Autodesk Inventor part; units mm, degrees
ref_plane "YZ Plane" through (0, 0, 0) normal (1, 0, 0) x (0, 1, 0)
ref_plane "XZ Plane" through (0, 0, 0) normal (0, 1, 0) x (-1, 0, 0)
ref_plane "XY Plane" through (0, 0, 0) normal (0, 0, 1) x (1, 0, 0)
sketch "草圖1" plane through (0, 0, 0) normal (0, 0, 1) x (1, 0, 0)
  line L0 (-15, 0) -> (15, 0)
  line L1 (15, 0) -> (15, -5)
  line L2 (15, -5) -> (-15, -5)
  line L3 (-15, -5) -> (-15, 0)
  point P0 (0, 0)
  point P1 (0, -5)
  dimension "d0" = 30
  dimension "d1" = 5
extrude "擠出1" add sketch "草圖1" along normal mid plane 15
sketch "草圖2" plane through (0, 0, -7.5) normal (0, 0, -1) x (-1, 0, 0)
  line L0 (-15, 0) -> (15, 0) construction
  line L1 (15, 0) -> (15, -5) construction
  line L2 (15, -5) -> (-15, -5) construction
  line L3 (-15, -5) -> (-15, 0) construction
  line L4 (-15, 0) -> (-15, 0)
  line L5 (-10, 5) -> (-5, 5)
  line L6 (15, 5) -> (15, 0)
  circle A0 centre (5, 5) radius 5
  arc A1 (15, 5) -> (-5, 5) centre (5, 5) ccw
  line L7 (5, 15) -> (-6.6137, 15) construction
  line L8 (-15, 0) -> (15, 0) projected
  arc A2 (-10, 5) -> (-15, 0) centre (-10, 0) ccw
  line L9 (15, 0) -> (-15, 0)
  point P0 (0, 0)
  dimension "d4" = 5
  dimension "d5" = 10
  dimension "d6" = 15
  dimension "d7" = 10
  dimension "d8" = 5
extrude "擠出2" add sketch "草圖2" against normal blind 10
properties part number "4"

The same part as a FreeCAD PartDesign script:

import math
import FreeCAD as App
import Part
import Sketcher

V = App.Vector


def add_polygon(sketch, points):
    """Adds a closed chain of lines whose ends are joined by coincident constraints."""
    first, n = sketch.GeometryCount, len(points)
    for a, b in zip(points, points[1:] + points[:1]):
        sketch.addGeometry(Part.LineSegment(App.Vector(*a, 0), App.Vector(*b, 0)), False)
    for i in range(n):
        sketch.addConstraint(Sketcher.Constraint("Coincident", first + i, 2, first + (i + 1) % n, 1))

doc = App.newDocument("Part")
body = doc.addObject("PartDesign::Body", "Body")

# Sketch on XY plane
sketch1 = body.newObject("Sketcher::SketchObject", "Sketch")
sketch1.AttachmentSupport = (doc.getObject("XY_Plane"), [""])
sketch1.MapMode = "FlatFace"
add_polygon(sketch1, [(15, 0), (-15, 0), (-15, -5), (15, -5)])  # lines 0-3
sketch1.addConstraint([
    Sketcher.Constraint("Horizontal", 0),
    Sketcher.Constraint("Vertical", 1),
    Sketcher.Constraint("Horizontal", 2),
    Sketcher.Constraint("Vertical", 3),
    Sketcher.Constraint("Symmetric", 0, 2, 3, 2, -1, 1),
    Sketcher.Constraint("DistanceX", 0, 2, 0, 1, 30.0),
    Sketcher.Constraint("DistanceY", 1, 2, 1, 1, 5.0),
])
pad1 = body.newObject("PartDesign::Pad", "Pad")
pad1.Profile = sketch1
pad1.Length = 15
pad1.Midplane = True

# Sketch on XY plane
sketch2 = body.newObject("Sketcher::SketchObject", "Sketch001")
sketch2.AttachmentSupport = (doc.getObject("XY_Plane"), [""])
sketch2.MapMode = "FlatFace"
sketch2.AttachmentOffset = App.Placement(V(0, 0, -7.5), App.Rotation())
sketch2.addGeometry([
    Part.LineSegment(V(5, 5, 0), V(10, 5, 0)),  # 0
    Part.ArcOfCircle(Part.Circle(V(10, 0, 0), V(0, 0, 1), 5), math.radians(0), math.radians(90)),  # 1
    Part.LineSegment(V(15, 0, 0), V(-5, 0, 0)),  # 2
    Part.LineSegment(V(-5, 0, 0), V(-15, 0, 0)),  # 3
    Part.LineSegment(V(-15, 0, 0), V(-15, 5, 0)),  # 4
    Part.ArcOfCircle(Part.Circle(V(-5, 5, 0), V(0, 0, 1), 10), math.radians(0), math.radians(180)),  # 5
    Part.Circle(V(-5, 5, 0), V(0, 0, 1), 5),  # 6
], False)
sketch2.addConstraint([
    Sketcher.Constraint("Tangent", 0, 2, 1, 2),
    Sketcher.Constraint("Coincident", 1, 1, 2, 1),
    Sketcher.Constraint("Coincident", 2, 2, 3, 1),
    Sketcher.Constraint("Coincident", 3, 2, 4, 1),
    Sketcher.Constraint("Tangent", 4, 2, 5, 2),
    Sketcher.Constraint("Coincident", 5, 1, 0, 1),
    Sketcher.Constraint("Horizontal", 0),
    Sketcher.Constraint("Horizontal", 2),
    Sketcher.Constraint("Horizontal", 3),
    Sketcher.Constraint("Vertical", 4),
    Sketcher.Constraint("Coincident", 6, 3, 5, 3),
    Sketcher.Constraint("Equal", 1, 6),
    Sketcher.Constraint("Symmetric", 1, 1, 3, 2, -1, 1),
    Sketcher.Constraint("PointOnObject", 1, 3, -1),
    Sketcher.Constraint("Horizontal", 6, 3, 0, 2),
    Sketcher.Constraint("Vertical", 6, 3, 2, 2),
    Sketcher.Constraint("Equal", 0, 4),
    Sketcher.Constraint("Diameter", 6, 10.0),
    Sketcher.Constraint("Radius", 5, 10.0),
])
pad2 = body.newObject("PartDesign::Pad", "Pad001")
pad2.Profile = sketch2
pad2.Length = 10

doc.recompute()
